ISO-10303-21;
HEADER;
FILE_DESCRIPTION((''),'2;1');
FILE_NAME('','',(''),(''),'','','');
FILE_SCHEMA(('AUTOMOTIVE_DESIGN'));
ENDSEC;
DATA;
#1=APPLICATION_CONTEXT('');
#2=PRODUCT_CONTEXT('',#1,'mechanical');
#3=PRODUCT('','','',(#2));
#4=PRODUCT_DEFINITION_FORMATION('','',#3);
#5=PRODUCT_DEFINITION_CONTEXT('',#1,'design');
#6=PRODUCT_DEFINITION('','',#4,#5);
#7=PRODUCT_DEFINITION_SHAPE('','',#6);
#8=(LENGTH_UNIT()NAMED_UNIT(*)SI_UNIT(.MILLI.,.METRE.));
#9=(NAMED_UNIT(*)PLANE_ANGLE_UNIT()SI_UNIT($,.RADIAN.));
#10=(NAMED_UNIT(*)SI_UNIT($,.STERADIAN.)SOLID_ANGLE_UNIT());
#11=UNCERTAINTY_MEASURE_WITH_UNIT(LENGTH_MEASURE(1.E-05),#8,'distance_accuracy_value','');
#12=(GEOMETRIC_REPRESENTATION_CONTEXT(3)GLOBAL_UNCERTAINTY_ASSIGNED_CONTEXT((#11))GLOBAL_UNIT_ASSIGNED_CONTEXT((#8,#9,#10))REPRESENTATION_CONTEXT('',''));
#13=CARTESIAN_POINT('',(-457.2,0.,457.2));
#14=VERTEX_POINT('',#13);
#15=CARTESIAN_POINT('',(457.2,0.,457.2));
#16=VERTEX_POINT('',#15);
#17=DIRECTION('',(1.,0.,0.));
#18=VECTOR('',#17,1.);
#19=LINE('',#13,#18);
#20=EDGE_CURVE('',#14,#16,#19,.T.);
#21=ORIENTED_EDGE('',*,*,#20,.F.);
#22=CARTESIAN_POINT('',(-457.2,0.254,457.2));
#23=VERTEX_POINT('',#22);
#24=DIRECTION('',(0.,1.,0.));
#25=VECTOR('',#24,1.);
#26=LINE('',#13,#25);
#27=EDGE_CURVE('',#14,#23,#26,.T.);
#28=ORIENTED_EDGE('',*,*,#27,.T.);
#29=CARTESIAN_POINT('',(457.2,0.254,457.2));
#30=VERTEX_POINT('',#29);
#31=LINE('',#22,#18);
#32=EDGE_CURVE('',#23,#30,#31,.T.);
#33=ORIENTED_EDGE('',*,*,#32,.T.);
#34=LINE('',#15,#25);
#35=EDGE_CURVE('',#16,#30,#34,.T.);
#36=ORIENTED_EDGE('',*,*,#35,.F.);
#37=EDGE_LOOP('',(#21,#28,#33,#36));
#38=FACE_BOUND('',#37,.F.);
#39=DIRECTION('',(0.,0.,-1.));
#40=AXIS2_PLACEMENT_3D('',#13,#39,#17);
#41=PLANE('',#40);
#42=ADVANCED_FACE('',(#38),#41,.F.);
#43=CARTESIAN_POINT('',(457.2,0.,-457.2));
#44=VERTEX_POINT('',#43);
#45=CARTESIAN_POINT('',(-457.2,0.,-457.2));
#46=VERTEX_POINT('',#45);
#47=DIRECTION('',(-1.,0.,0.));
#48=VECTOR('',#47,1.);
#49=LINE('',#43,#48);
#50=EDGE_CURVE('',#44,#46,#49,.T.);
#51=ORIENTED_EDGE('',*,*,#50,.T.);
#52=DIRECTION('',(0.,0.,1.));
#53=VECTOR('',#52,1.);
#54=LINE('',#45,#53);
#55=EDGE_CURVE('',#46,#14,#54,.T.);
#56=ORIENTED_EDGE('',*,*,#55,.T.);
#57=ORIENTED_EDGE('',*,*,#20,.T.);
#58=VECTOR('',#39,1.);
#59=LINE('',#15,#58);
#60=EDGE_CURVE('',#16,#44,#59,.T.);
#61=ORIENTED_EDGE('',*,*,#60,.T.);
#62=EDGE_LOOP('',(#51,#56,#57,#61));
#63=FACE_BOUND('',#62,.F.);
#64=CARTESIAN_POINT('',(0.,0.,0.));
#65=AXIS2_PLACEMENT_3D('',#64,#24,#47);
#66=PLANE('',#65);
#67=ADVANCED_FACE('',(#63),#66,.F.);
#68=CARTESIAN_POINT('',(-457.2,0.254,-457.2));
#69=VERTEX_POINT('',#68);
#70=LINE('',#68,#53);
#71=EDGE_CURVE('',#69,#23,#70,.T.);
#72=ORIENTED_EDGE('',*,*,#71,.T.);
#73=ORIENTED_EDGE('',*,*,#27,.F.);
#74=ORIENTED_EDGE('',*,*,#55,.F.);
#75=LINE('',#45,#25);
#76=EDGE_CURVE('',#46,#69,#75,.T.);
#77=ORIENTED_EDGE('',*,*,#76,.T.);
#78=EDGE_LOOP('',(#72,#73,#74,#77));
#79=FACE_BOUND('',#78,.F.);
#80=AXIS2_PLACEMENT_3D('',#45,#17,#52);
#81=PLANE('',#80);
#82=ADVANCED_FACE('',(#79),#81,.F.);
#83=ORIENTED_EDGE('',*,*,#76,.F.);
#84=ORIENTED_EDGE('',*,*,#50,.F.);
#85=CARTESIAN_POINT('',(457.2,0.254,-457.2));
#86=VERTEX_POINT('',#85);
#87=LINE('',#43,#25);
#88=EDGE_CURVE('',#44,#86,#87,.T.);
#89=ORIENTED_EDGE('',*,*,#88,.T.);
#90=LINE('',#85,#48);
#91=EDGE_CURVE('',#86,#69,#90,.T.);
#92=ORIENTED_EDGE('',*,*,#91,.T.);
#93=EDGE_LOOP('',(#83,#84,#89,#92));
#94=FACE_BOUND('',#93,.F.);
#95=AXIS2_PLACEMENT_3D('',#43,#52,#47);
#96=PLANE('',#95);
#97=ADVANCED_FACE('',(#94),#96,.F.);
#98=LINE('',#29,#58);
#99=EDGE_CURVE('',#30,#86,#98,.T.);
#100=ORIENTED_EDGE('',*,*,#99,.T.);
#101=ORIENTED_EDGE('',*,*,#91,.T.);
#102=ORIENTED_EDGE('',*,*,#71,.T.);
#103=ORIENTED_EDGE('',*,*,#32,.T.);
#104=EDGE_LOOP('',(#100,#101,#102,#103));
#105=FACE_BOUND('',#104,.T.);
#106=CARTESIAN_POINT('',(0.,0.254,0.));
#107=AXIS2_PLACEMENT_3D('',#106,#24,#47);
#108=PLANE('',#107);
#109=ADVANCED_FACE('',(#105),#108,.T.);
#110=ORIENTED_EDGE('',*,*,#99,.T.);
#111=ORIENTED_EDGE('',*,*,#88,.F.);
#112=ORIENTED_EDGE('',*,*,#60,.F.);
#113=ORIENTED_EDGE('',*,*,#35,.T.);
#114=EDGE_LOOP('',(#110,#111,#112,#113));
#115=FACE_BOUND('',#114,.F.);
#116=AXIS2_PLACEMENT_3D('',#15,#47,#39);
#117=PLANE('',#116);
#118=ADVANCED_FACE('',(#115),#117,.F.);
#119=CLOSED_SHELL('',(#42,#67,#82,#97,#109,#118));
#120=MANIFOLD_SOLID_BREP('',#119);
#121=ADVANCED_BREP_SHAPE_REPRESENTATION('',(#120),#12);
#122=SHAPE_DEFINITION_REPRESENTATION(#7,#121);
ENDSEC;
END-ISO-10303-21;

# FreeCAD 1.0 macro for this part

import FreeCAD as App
import Part
import Sketcher
from FreeCAD import Vector
Q = App.Units.Quantity

doc = App.newDocument("Part")
params = doc.addObject("Spreadsheet::Sheet", "Params")
for row, (alias, value) in enumerate([
    ("sketch1_width", "36 in"),
    ("pad1_length", "0.01 in"),
], start=1):
    params.set(f"A{row}", alias)
    params.set(f"B{row}", "=" + value)
    params.setAlias(f"B{row}", alias)

body = doc.addObject("PartDesign::Body", "Body")

# Sketch on XZ plane
sketch1 = body.newObject("Sketcher::SketchObject", "Sketch")
sketch1.AttachmentSupport = (doc.getObject("XZ_Plane"), [""])
sketch1.MapMode = "FlatFace"
sketch1.addGeometry([
    Part.LineSegment(Vector(-457, -457, 0), Vector(-457, 457, 0)),
    Part.LineSegment(Vector(-457, 457, 0), Vector(457, 457, 0)),
    Part.LineSegment(Vector(457, 457, 0), Vector(457, -457, 0)),
    Part.LineSegment(Vector(457, -457, 0), Vector(-457, -457, 0)),
], False)
sketch1.addConstraint([
    Sketcher.Constraint("Coincident", 0, 2, 1, 1),
    Sketcher.Constraint("Coincident", 1, 2, 2, 1),
    Sketcher.Constraint("Coincident", 2, 2, 3, 1),
    Sketcher.Constraint("Coincident", 3, 2, 0, 1),
    Sketcher.Constraint("Vertical", 0),
    Sketcher.Constraint("Horizontal", 1),
    Sketcher.Constraint("Vertical", 2),
    Sketcher.Constraint("Horizontal", 3),
    Sketcher.Constraint("Symmetric", 0, 2, 2, 2, -1, 1),
    Sketcher.Constraint("Equal", 3, 0),
    Sketcher.Constraint("DistanceX", 1, 1, 1, 2, Q("36 in")),
])
sketch1.setExpression("Constraints[10]", "Params.sketch1_width")
pad1 = body.newObject("PartDesign::Pad", "Pad")
pad1.Profile = sketch1
pad1.setExpression("Length", "Params.pad1_length")
pad1.Reversed = True

doc.recompute()
